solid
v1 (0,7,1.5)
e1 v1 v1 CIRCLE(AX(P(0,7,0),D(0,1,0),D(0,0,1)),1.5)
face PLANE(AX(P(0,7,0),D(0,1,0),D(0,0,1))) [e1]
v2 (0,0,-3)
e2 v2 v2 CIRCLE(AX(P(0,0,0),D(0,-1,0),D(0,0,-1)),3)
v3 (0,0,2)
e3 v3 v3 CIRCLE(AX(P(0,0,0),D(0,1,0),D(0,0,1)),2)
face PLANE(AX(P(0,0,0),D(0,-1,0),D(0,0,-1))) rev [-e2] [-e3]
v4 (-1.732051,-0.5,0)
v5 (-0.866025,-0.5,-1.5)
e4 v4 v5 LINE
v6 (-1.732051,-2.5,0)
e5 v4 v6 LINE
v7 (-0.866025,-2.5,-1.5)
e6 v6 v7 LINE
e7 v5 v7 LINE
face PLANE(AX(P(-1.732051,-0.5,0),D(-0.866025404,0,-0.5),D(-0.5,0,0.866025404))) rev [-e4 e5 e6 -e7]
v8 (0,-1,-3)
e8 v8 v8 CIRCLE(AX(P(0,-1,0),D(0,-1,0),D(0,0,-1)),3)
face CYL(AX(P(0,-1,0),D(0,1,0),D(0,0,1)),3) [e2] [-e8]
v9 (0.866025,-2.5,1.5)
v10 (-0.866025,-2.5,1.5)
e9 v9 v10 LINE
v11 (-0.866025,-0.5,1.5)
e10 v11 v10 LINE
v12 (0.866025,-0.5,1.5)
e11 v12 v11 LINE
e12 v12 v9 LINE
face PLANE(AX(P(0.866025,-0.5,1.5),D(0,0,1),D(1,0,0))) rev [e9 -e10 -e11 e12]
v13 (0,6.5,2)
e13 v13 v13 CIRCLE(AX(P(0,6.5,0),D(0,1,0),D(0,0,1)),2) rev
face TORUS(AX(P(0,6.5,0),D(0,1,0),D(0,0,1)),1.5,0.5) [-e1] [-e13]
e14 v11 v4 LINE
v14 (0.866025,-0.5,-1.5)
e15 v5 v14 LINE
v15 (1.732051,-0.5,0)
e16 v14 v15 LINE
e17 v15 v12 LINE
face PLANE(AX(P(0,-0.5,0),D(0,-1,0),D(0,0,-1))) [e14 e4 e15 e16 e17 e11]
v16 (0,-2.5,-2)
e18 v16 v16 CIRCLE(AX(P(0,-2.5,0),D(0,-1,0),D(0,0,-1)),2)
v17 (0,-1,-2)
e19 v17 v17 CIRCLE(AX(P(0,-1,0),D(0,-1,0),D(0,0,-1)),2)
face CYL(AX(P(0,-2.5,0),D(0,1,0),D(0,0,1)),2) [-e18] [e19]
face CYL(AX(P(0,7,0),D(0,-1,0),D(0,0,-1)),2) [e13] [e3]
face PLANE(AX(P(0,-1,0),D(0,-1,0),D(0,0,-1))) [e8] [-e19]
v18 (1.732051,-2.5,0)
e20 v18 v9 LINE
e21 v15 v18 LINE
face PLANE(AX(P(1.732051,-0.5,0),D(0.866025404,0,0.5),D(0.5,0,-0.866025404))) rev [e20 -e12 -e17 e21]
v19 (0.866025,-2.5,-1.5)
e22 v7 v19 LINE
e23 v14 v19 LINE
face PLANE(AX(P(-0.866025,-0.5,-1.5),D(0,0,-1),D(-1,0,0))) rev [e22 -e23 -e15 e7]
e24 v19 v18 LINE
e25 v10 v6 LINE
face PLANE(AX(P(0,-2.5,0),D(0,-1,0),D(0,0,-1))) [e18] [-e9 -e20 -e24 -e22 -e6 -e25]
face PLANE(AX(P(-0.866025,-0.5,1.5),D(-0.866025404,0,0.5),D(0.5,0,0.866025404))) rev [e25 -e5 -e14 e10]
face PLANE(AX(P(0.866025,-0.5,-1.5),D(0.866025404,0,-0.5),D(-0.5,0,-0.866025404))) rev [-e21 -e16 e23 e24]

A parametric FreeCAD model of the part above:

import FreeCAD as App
import Part
import Sketcher
Q = App.Units.Quantity


def edges_at(feature, points):
    """Names of the edges that pass closest to the given points."""
    edges = feature.Shape.Edges
    near = lambda p: min(range(len(edges)), key=lambda i: edges[i].distToShape(Part.Vertex(*p))[0])
    return sorted({f"Edge{near(p) + 1}" for p in points})


def add_polygon(sketch, points):
    """Adds a closed chain of lines whose ends are joined by coincident constraints."""
    first, n = sketch.GeometryCount, len(points)
    for a, b in zip(points, points[1:] + points[:1]):
        sketch.addGeometry(Part.LineSegment(App.Vector(*a, 0), App.Vector(*b, 0)), False)
    for i in range(n):
        sketch.addConstraint(Sketcher.Constraint("Coincident", first + i, 2, first + (i + 1) % n, 1))

doc = App.newDocument("Part")
body = doc.addObject("PartDesign::Body", "Body")

# Sketch on XZ plane
sketch1 = body.newObject("Sketcher::SketchObject", "Sketch")
sketch1.AttachmentSupport = (doc.getObject("XZ_Plane"), [""])
sketch1.MapMode = "FlatFace"
sketch1.addGeometry(Part.Circle(App.Vector(0, 0, 0), App.Vector(0, 0, 1), 2), False)
sketch1.addConstraint(Sketcher.Constraint("Coincident", 0, 3, -1, 1))
sketch1.addConstraint(Sketcher.Constraint("Diameter", 0, 4.0))
pad1 = body.newObject("PartDesign::Pad", "Pad")
pad1.Profile = sketch1
pad1.Length = 7
pad1.Reversed = True
doc.recompute()

fillet = body.newObject("PartDesign::Fillet", "Fillet")
fillet.Base = (pad1, edges_at(pad1, [(0, 7, -2)]))
fillet.Radius = 0.5

# Sketch on XZ plane
sketch2 = body.newObject("Sketcher::SketchObject", "Sketch001")
sketch2.AttachmentSupport = (doc.getObject("XZ_Plane"), [""])
sketch2.MapMode = "FlatFace"
sketch2.addGeometry(Part.Circle(App.Vector(0, 0, 0), App.Vector(0, 0, 1), 3), False)
sketch2.addConstraint(Sketcher.Constraint("Coincident", 0, 3, -1, 1))
sketch2.addConstraint(Sketcher.Constraint("Diameter", 0, 6.0))
pad2 = body.newObject("PartDesign::Pad", "Pad001")
pad2.Profile = sketch2
pad2.Length = 1

# Sketch on XZ plane
sketch3 = body.newObject("Sketcher::SketchObject", "Sketch002")
sketch3.AttachmentSupport = (doc.getObject("XZ_Plane"), [""])
sketch3.MapMode = "FlatFace"
sketch3.AttachmentOffset = App.Placement(App.Vector(0, 0, 2.5), App.Rotation())
sketch3.addGeometry(Part.Circle(App.Vector(0, 0, 0), App.Vector(0, 0, 1), 2), False)
sketch3.addConstraint(Sketcher.Constraint("Coincident", 0, 3, -1, 1))
sketch3.addConstraint(Sketcher.Constraint("Diameter", 0, 4.0))
pad3 = body.newObject("PartDesign::Pad", "Pad002")
pad3.Profile = sketch3
pad3.Length = 1.5
pad3.Reversed = True

# Sketch on XZ plane
sketch4 = body.newObject("Sketcher::SketchObject", "Sketch003")
sketch4.AttachmentSupport = (doc.getObject("XZ_Plane"), [""])
sketch4.MapMode = "FlatFace"
sketch4.AttachmentOffset = App.Placement(App.Vector(0, 0, 2.5), App.Rotation())
add_polygon(sketch4, [(1.732051, 0), (0.866025, 1.5), (-0.866025, 1.5), (-1.732051, 0), (-0.866025, -1.5), (0.866025, -1.5)])  # lines 0-5
sketch4.addConstraint(Sketcher.Constraint("Horizontal", 1))
sketch4.addConstraint(Sketcher.Constraint("Horizontal", 4))
sketch4.addConstraint(Sketcher.Constraint("Symmetric", 0, 2, 3, 2, -1, 1))
sketch4.addConstraint(Sketcher.Constraint("Symmetric", 2, 2, 5, 2, -1, 1))
sketch4.addConstraint(Sketcher.Constraint("PointOnObject", 2, 2, -1))
sketch4.addConstraint(Sketcher.Constraint("Parallel", 2, 5))
sketch4.addConstraint(Sketcher.Constraint("Vertical", 1, 2, 3, 2))
sketch4.addConstraint(Sketcher.Constraint("Angle", 0, Q("120 deg")))
sketch4.addConstraint(Sketcher.Constraint("DistanceY", 3, 2, 1, 2, 3.0))
sketch4.addConstraint(Sketcher.Constraint("DistanceX", 1, 2, 1, 1, 1.732051))
pocket1 = body.newObject("PartDesign::Pocket", "Pocket")
pocket1.Profile = sketch4
pocket1.Length = 2

doc.recompute()
